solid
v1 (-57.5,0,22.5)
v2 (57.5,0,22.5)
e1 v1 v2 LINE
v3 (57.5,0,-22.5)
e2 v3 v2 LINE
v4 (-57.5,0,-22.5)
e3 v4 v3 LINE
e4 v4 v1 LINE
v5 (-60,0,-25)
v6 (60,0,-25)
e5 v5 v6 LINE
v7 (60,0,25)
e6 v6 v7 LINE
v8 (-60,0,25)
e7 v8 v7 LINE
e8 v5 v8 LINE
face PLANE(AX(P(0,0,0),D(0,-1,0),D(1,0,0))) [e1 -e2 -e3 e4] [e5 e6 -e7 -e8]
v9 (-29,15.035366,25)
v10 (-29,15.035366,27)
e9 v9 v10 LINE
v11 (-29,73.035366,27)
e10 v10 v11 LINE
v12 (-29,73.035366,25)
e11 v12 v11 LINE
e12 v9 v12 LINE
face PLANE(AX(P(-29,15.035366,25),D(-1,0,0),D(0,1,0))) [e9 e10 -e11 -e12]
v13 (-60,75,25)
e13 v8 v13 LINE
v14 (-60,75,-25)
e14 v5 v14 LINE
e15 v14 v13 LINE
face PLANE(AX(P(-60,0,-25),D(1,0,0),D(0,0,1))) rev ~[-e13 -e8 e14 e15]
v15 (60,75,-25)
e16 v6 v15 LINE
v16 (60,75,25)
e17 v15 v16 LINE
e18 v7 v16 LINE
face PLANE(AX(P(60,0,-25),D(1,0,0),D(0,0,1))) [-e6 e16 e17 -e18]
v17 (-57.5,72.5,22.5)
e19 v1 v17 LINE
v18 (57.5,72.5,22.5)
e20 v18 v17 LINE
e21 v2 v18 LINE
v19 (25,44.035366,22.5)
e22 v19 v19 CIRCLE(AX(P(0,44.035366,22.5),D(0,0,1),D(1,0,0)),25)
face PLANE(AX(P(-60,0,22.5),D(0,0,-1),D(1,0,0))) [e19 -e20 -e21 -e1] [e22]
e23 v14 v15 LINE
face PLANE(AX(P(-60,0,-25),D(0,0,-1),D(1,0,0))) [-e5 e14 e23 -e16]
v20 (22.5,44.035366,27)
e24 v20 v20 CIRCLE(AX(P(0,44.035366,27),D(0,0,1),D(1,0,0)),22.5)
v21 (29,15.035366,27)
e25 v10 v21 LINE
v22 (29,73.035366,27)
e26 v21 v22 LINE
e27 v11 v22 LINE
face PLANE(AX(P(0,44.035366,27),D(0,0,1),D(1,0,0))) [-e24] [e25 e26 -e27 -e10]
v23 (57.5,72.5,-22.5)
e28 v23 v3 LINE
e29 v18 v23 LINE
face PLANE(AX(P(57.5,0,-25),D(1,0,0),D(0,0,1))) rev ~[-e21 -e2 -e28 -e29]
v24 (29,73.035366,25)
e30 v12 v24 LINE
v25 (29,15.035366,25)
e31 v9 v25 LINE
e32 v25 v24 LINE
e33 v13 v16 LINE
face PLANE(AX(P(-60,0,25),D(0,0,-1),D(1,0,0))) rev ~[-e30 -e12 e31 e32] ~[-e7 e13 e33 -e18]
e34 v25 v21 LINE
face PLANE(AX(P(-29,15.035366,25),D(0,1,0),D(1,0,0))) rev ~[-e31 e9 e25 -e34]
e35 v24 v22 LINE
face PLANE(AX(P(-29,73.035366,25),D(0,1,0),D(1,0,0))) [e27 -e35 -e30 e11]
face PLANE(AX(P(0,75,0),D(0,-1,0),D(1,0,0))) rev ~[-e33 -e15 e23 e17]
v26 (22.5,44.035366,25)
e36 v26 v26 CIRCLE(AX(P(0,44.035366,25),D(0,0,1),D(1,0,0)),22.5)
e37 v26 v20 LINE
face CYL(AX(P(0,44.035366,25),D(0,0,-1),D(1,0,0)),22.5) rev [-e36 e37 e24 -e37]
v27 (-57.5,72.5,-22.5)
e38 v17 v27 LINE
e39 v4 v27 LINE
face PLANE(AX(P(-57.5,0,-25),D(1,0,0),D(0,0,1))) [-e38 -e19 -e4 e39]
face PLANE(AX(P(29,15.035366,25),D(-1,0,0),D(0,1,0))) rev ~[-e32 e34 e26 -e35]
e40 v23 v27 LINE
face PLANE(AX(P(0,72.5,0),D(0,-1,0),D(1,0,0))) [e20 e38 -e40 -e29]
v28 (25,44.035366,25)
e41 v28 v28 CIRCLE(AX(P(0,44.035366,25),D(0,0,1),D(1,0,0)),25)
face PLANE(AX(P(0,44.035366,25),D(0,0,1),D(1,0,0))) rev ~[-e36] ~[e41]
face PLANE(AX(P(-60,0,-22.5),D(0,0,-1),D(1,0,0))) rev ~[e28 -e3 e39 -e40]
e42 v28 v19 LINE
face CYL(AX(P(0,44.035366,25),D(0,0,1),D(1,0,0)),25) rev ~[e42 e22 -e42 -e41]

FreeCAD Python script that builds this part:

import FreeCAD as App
import Part
import Sketcher

V = App.Vector
Q = App.Units.Quantity


def faces_at(feature, points):
    """Names of the faces that lie closest to the given points."""
    faces = feature.Shape.Faces
    near = lambda p: min(range(len(faces)), key=lambda i: faces[i].distToShape(Part.Vertex(*p))[0])
    return sorted({f"Face{near(p) + 1}" for p in points})

doc = App.newDocument("Part")
body = doc.addObject("PartDesign::Body", "Body")

sketch1 = body.newObject("Sketcher::SketchObject", "Sketch")
sketch1.AttachmentSupport = (doc.getObject("XZ_Plane"), [""])
sketch1.MapMode = "FlatFace"
sketch1.addGeometry([
    Part.LineSegment(V(-60, 25, 0), V(-60, -25, 0)),
    Part.LineSegment(V(-60, -25, 0), V(60, -25, 0)),
    Part.LineSegment(V(60, -25, 0), V(60, 25, 0)),
    Part.LineSegment(V(60, 25, 0), V(-60, 25, 0)),
], False)
sketch1.addConstraint([
    Sketcher.Constraint("Coincident", 0, 2, 1, 1),
    Sketcher.Constraint("Coincident", 1, 2, 2, 1),
    Sketcher.Constraint("Coincident", 2, 2, 3, 1),
    Sketcher.Constraint("Coincident", 3, 2, 0, 1),
    Sketcher.Constraint("Vertical", 0),
    Sketcher.Constraint("Horizontal", 1),
    Sketcher.Constraint("Vertical", 2),
    Sketcher.Constraint("Horizontal", 3),
    Sketcher.Constraint("Symmetric", 0, 2, 2, 2, -1, 1),
    Sketcher.Constraint("DistanceX", 1, 1, 1, 2, Q("120 mm")),
    Sketcher.Constraint("DistanceY", 0, 2, 0, 1, Q("50 mm")),
])
pad1 = body.newObject("PartDesign::Pad", "Pad")
pad1.Profile = sketch1
pad1.Length = 75
pad1.Reversed = True
doc.recompute()

thickness = body.newObject("PartDesign::Thickness", "Thickness")
thickness.Base = (pad1, faces_at(pad1, [(0, 0, 0)]))
thickness.Value = 2.5
thickness.Reversed = True
thickness.Join = "Arc"

sketch2 = body.newObject("Sketcher::SketchObject", "Sketch001")
sketch2.AttachmentSupport = (doc.getObject("XY_Plane"), [""])
sketch2.MapMode = "FlatFace"
sketch2.AttachmentOffset = App.Placement(V(0, 0, 25), App.Rotation())
sketch2.addGeometry(Part.Circle(V(0, 44.035366, 0), V(0, 0, 1), 25), False)
sketch2.addConstraint([
    Sketcher.Constraint("PointOnObject", 0, 3, -2),
    Sketcher.Constraint("Diameter", 0, Q("50 mm")),
    Sketcher.Constraint("DistanceY", -1, 1, 0, 3, Q("44.035366 mm")),
])
pocket1 = body.newObject("PartDesign::Pocket", "Pocket")
pocket1.Profile = sketch2
pocket1.Length = 2.5

sketch3 = body.newObject("Sketcher::SketchObject", "Sketch002")
sketch3.AttachmentSupport = (doc.getObject("XY_Plane"), [""])
sketch3.MapMode = "FlatFace"
sketch3.AttachmentOffset = App.Placement(V(0, 0, 25), App.Rotation())
sketch3.addGeometry([
    Part.LineSegment(V(-29, 73.035366, 0), V(-29, 15.035366, 0)),
    Part.LineSegment(V(-29, 15.035366, 0), V(29, 15.035366, 0)),
    Part.LineSegment(V(29, 15.035366, 0), V(29, 73.035366, 0)),
    Part.LineSegment(V(29, 73.035366, 0), V(-29, 73.035366, 0)),
    Part.Circle(V(0, 44.035366, 0), V(0, 0, 1), 22.5),
], False)
sketch3.addConstraint([
    Sketcher.Constraint("Coincident", 0, 2, 1, 1),
    Sketcher.Constraint("Coincident", 1, 2, 2, 1),
    Sketcher.Constraint("Coincident", 2, 2, 3, 1),
    Sketcher.Constraint("Coincident", 3, 2, 0, 1),
    Sketcher.Constraint("Vertical", 0),
    Sketcher.Constraint("Horizontal", 1),
    Sketcher.Constraint("Vertical", 2),
    Sketcher.Constraint("Horizontal", 3),
    Sketcher.Constraint("PointOnObject", 4, 3, -2),
    Sketcher.Constraint("Equal", 3, 0),
    Sketcher.Constraint("Diameter", 4, Q("45 mm")),
    Sketcher.Constraint("DistanceX", 1, 1, 1, 2, Q("58 mm")),
    Sketcher.Constraint("DistanceX", 0, 2, -1, 1, Q("29 mm")),
    Sketcher.Constraint("DistanceY", 0, 2, 4, 3, Q("29 mm")),
    Sketcher.Constraint("DistanceY", -1, 1, 4, 3, Q("44.035366 mm")),
])
pad2 = body.newObject("PartDesign::Pad", "Pad001")
pad2.Profile = sketch3
pad2.Length = 2

doc.recompute()
